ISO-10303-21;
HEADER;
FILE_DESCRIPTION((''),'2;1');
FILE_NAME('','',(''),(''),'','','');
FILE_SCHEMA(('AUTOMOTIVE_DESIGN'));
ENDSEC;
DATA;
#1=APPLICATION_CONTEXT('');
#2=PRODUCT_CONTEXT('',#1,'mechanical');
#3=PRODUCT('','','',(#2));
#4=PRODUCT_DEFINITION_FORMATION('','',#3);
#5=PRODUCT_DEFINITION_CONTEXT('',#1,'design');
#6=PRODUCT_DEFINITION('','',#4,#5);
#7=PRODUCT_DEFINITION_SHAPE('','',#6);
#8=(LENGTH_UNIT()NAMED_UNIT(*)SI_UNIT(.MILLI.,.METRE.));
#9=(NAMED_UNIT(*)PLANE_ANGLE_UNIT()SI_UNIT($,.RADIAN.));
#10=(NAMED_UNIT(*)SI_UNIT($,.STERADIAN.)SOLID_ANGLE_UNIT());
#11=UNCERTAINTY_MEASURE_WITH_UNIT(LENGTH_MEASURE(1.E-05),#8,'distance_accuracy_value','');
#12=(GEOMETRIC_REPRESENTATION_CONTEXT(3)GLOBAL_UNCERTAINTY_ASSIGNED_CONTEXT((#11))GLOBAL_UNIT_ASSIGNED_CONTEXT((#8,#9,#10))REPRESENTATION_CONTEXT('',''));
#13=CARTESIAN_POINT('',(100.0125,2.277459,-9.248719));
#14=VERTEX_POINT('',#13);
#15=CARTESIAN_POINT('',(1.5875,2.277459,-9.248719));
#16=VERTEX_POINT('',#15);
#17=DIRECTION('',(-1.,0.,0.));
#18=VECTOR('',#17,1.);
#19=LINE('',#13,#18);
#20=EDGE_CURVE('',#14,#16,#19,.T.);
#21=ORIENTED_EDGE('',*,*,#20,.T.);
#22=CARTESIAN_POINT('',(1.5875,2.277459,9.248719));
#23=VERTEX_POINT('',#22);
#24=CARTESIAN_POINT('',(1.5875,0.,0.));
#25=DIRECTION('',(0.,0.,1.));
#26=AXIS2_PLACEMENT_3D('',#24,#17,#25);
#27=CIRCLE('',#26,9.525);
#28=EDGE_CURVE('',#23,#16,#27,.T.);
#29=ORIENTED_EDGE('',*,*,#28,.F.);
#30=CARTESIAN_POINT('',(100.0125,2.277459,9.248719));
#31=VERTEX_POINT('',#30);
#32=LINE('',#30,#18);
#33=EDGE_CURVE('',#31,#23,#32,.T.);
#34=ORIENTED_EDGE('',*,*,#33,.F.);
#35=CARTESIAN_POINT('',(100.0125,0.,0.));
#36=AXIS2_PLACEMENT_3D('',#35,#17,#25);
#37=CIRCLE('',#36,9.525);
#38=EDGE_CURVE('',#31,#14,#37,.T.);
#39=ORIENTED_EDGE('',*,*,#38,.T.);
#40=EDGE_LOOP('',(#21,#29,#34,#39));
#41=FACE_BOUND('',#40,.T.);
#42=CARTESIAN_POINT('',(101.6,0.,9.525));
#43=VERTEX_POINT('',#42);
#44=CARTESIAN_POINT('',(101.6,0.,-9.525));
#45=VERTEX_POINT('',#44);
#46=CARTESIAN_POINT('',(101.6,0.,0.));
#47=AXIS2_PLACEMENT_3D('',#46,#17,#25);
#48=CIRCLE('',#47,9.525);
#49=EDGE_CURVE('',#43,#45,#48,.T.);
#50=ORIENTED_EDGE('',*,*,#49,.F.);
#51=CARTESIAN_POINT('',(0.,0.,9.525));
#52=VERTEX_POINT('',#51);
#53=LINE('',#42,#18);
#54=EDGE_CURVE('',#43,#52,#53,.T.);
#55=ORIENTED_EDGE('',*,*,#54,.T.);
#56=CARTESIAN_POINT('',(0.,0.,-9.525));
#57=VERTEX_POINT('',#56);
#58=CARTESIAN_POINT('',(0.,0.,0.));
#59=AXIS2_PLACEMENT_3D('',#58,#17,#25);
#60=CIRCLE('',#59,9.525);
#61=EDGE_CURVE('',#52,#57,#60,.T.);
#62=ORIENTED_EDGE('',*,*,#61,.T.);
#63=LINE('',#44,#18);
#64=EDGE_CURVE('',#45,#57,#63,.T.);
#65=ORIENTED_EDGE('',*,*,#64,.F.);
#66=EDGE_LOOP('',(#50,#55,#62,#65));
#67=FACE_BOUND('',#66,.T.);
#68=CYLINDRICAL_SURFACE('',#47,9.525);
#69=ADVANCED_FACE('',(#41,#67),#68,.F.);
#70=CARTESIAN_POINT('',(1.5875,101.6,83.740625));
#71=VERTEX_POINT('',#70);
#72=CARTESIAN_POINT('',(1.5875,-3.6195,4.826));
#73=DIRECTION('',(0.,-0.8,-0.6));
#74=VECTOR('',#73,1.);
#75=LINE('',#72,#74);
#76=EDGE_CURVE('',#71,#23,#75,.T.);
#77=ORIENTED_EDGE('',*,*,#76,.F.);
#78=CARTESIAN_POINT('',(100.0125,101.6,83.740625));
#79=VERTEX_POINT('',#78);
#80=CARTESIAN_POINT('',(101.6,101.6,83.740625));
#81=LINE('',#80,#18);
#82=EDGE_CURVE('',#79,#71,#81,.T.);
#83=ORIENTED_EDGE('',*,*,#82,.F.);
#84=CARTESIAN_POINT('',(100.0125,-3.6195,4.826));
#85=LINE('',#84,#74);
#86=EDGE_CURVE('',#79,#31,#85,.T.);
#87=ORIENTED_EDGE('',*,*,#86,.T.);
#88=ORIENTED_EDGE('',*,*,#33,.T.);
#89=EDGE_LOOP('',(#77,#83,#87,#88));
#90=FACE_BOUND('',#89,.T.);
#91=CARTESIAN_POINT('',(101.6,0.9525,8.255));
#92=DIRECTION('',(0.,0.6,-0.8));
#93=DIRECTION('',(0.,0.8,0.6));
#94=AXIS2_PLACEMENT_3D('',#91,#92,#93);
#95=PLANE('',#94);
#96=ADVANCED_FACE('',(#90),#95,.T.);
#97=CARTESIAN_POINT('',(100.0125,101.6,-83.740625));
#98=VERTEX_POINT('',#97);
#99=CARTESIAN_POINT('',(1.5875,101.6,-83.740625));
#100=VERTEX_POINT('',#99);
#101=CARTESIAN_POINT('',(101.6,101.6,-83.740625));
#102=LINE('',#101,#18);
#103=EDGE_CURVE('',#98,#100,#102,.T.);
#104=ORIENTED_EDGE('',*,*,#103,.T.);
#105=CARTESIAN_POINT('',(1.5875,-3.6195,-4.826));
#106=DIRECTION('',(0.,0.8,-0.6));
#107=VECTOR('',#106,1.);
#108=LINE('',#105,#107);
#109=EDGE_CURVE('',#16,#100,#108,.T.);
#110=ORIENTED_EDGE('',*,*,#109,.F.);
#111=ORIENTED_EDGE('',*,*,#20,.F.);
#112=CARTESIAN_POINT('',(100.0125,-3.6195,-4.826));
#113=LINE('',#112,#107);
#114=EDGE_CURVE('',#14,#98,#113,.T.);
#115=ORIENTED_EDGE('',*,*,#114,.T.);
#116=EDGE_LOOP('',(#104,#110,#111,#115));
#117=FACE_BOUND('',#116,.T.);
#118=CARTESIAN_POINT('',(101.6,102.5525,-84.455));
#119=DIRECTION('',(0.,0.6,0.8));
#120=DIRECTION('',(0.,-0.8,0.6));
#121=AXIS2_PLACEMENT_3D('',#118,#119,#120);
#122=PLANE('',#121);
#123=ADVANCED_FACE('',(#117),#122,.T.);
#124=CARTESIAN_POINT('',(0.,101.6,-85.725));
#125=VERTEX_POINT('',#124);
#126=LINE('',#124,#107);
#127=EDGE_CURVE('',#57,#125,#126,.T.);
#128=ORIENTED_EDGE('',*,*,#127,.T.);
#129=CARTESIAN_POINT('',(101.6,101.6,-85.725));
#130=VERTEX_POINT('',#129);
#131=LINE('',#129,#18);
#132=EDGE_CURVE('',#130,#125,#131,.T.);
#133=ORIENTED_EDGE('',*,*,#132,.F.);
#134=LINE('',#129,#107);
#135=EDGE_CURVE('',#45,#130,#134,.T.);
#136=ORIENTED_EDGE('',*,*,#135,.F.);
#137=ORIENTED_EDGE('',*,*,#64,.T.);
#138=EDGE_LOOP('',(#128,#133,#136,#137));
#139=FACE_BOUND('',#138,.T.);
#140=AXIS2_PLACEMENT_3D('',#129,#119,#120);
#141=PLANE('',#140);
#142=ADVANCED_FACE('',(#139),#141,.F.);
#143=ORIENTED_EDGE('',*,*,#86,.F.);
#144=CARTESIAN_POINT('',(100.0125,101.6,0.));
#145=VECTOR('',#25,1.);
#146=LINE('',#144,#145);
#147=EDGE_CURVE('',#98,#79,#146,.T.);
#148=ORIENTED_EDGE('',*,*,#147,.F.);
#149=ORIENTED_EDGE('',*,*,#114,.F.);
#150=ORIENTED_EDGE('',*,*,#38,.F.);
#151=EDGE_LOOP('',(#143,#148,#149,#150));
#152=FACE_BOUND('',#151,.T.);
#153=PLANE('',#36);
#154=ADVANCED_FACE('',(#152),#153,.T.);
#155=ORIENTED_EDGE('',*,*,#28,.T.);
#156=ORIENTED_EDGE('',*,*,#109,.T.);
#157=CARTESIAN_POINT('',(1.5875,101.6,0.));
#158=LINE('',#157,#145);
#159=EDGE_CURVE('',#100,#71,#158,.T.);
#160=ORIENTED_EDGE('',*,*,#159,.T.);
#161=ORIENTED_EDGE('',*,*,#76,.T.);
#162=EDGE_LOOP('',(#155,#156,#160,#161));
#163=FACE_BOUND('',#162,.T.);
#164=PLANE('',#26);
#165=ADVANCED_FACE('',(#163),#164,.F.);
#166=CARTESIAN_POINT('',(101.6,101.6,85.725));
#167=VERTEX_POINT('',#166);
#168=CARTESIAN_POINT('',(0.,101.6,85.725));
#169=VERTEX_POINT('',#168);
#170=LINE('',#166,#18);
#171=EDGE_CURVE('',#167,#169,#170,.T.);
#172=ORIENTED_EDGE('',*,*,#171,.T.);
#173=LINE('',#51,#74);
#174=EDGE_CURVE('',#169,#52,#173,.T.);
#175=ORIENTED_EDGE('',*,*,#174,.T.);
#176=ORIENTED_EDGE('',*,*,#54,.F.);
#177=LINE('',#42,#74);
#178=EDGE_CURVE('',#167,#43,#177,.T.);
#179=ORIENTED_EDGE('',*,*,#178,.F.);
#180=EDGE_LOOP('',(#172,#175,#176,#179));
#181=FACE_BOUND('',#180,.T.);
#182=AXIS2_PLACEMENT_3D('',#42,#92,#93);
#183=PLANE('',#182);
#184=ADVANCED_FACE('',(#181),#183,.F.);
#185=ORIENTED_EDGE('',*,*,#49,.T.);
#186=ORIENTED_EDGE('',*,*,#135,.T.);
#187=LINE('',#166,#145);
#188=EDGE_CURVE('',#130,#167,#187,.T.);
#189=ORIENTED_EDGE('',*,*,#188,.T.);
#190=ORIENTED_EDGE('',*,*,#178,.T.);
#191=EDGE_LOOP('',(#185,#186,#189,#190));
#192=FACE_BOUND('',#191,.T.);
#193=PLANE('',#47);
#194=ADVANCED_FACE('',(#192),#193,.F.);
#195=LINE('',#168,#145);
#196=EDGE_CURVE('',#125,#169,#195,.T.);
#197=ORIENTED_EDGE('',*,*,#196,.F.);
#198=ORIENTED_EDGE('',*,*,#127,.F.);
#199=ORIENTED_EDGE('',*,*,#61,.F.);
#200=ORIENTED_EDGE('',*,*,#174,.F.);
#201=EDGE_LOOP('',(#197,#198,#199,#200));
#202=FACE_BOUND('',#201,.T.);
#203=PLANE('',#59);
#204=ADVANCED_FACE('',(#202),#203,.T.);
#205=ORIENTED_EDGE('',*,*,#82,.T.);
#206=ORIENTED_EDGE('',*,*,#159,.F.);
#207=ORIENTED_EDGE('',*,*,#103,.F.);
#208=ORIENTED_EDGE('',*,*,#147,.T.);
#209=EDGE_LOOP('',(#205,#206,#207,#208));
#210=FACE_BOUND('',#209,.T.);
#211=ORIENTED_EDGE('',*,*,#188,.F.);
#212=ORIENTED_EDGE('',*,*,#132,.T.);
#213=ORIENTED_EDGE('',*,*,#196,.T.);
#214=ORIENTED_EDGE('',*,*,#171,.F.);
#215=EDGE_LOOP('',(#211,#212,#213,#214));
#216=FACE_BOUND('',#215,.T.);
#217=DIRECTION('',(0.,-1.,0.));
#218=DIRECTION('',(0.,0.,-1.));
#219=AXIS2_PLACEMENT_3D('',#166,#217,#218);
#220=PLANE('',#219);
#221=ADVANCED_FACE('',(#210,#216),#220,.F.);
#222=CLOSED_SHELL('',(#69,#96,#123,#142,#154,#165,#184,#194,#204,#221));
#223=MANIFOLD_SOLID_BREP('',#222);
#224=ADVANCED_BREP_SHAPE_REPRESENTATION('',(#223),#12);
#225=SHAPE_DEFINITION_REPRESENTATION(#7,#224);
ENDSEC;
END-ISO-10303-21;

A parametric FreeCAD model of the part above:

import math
import FreeCAD as App
import Part
import Sketcher

V = App.Vector
Q = App.Units.Quantity


def faces_at(feature, points):
    """Names of the faces that lie closest to the given points."""
    faces = feature.Shape.Faces
    near = lambda p: min(range(len(faces)), key=lambda i: faces[i].distToShape(Part.Vertex(*p))[0])
    return sorted({f"Face{near(p) + 1}" for p in points})

doc = App.newDocument("Part")
body = doc.addObject("PartDesign::Body", "Body")

# Sketch on YZ plane
sketch1 = body.newObject("Sketcher::SketchObject", "Sketch")
sketch1.AttachmentSupport = (doc.getObject("YZ_Plane"), [""])
sketch1.MapMode = "FlatFace"
sketch1.addGeometry(Part.LineSegment(V(102, 86, 0), V(0, 10, 0)), False)
sketch1.addGeometry(Part.ArcOfCircle(Part.Circle(V(0, 0, 0), V(0, 0, 1), 10), math.radians(-90), math.radians(90)), False)
sketch1.addGeometry(Part.LineSegment(V(0, -10, 0), V(102, -86, 0)), False)
sketch1.addGeometry(Part.LineSegment(V(102, -86, 0), V(102, 86, 0)), False)
sketch1.addConstraint(Sketcher.Constraint("Coincident", 0, 2, 1, 2))
sketch1.addConstraint(Sketcher.Constraint("Coincident", 1, 1, 2, 1))
sketch1.addConstraint(Sketcher.Constraint("Coincident", 2, 2, 3, 1))
sketch1.addConstraint(Sketcher.Constraint("Coincident", 3, 2, 0, 1))
sketch1.addConstraint(Sketcher.Constraint("Vertical", 3))
sketch1.addConstraint(Sketcher.Constraint("Coincident", 1, 3, -1, 1))
sketch1.addConstraint(Sketcher.Constraint("PointOnObject", 0, 2, -2))
sketch1.addConstraint(Sketcher.Constraint("PointOnObject", 1, 1, -2))
sketch1.addConstraint(Sketcher.Constraint("Equal", 0, 2))
sketch1.addConstraint(Sketcher.Constraint("Distance", 0, Q("5 in")))
sketch1.addConstraint(Sketcher.Constraint("DistanceX", -1, 1, 2, 2, Q("4 in")))
sketch1.addConstraint(Sketcher.Constraint("Radius", 1, Q("0.375 in")))
pad1 = body.newObject("PartDesign::Pad", "Pad")
pad1.Profile = sketch1
pad1.Length = Q("4 in")
doc.recompute()

thickness = body.newObject("PartDesign::Thickness", "Thickness")
thickness.Base = (pad1, faces_at(pad1, [(50.8, 101.6, 0), (50.8, 9.525, 0)]))
thickness.Value = Q("0.0625 in")
thickness.Reversed = True
thickness.Join = "Intersection"

doc.recompute()
